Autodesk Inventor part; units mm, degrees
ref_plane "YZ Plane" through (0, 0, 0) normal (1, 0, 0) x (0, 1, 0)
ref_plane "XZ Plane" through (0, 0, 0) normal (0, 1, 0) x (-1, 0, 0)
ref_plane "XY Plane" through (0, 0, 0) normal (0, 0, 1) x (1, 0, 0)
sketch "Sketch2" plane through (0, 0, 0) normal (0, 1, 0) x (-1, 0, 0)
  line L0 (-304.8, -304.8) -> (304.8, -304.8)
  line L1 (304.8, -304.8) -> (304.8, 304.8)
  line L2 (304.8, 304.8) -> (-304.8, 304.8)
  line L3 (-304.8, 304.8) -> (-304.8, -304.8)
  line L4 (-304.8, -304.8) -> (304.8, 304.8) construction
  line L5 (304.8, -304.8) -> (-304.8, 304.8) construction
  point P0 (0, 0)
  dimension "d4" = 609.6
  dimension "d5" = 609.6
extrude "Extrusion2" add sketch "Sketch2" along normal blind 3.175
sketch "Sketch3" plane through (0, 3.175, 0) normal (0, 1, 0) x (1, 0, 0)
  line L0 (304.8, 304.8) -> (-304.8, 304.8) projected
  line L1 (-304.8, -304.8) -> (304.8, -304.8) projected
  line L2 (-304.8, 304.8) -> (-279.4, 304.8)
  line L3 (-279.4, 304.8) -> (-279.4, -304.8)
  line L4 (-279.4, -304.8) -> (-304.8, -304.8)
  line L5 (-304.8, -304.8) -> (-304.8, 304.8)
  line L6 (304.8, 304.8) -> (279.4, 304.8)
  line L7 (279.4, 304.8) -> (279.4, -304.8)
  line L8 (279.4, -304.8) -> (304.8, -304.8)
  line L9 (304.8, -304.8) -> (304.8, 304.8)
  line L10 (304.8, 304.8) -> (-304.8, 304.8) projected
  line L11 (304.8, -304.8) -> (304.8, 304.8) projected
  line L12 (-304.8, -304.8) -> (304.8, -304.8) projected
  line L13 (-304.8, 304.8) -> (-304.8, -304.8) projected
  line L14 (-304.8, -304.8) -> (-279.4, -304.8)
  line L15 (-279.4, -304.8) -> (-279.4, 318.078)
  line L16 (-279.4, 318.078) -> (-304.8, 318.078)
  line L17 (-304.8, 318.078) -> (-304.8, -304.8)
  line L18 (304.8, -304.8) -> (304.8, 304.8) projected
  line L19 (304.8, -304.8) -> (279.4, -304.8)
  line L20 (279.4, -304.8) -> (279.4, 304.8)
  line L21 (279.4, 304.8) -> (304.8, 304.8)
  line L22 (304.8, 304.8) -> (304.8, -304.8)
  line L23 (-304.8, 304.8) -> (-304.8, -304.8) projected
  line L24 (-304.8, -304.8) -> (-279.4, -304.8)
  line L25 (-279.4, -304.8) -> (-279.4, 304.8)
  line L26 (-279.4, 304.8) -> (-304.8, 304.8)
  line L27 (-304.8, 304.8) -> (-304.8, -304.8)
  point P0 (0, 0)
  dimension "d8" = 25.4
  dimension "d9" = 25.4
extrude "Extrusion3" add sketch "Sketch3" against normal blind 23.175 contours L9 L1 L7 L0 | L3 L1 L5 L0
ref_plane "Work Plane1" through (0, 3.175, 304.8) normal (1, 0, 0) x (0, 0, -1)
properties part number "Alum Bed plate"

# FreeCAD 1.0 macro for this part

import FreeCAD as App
import Part
import Sketcher

V = App.Vector
Q = App.Units.Quantity


def add_polygon(sketch, points):
    """Adds a closed chain of lines whose ends are joined by coincident constraints."""
    first, n = sketch.GeometryCount, len(points)
    for a, b in zip(points, points[1:] + points[:1]):
        sketch.addGeometry(Part.LineSegment(App.Vector(*a, 0), App.Vector(*b, 0)), False)
    for i in range(n):
        sketch.addConstraint(Sketcher.Constraint("Coincident", first + i, 2, first + (i + 1) % n, 1))

doc = App.newDocument("Part")
params = doc.addObject("Spreadsheet::Sheet", "Params")
for row, (alias, value) in enumerate([
    ("sketch1_width", "24 in"),
    ("pad1_length", "0.125 in"),
    ("sketch2_width", "1 in"),
    ("sketch2_height", "24 in"),
    ("pad2_length", "0.9124016 in"),
], start=1):
    params.set(f"A{row}", alias)
    params.set(f"B{row}", "=" + value)
    params.setAlias(f"B{row}", alias)

body = doc.addObject("PartDesign::Body", "Body")

# Sketch on XZ plane
sketch1 = body.newObject("Sketcher::SketchObject", "Sketch")
sketch1.AttachmentSupport = (doc.getObject("XZ_Plane"), [""])
sketch1.MapMode = "FlatFace"
add_polygon(sketch1, [(304.8, 304.8), (304.8, -304.8), (-304.8, -304.8), (-304.8, 304.8)])  # lines 0-3
sketch1.addConstraint([
    Sketcher.Constraint("Vertical", 0),
    Sketcher.Constraint("Horizontal", 1),
    Sketcher.Constraint("Vertical", 2),
    Sketcher.Constraint("Horizontal", 3),
    Sketcher.Constraint("Symmetric", 0, 2, 2, 2, -1, 1),
    Sketcher.Constraint("Equal", 3, 0),
    Sketcher.Constraint("DistanceX", 1, 2, 1, 1, Q("24 in")),
])
sketch1.setExpression("Constraints[10]", "Params.sketch1_width")
pad1 = body.newObject("PartDesign::Pad", "Pad")
pad1.Profile = sketch1
pad1.setExpression("Length", "Params.pad1_length")
pad1.Reversed = True

# Sketch on XZ plane
sketch2 = body.newObject("Sketcher::SketchObject", "Sketch001")
sketch2.AttachmentSupport = (doc.getObject("XZ_Plane"), [""])
sketch2.MapMode = "FlatFace"
sketch2.AttachmentOffset = App.Placement(V(0, 0, -0.125 * 25.4), App.Rotation())
add_polygon(sketch2, [(304.8, 304.8), (304.8, -304.8), (279.4, -304.8), (279.4, 304.8)])  # lines 0-3
add_polygon(sketch2, [(-279.4, 304.8), (-279.4, -304.8), (-304.8, -304.8), (-304.8, 304.8)])  # lines 4-7
sketch2.addConstraint([
    Sketcher.Constraint("Vertical", 0),
    Sketcher.Constraint("Horizontal", 1),
    Sketcher.Constraint("Vertical", 2),
    Sketcher.Constraint("Horizontal", 3),
    Sketcher.Constraint("Vertical", 4),
    Sketcher.Constraint("Horizontal", 5),
    Sketcher.Constraint("Vertical", 6),
    Sketcher.Constraint("Horizontal", 7),
    Sketcher.Constraint("Symmetric", 2, 2, 4, 2, -1, 1),
    Sketcher.Constraint("Symmetric", 0, 2, 6, 2, -1, 1),
    Sketcher.Constraint("Horizontal", 1, 2, 4, 2),
    Sketcher.Constraint("DistanceX", 1, 2, 1, 1, Q("1 in")),
    Sketcher.Constraint("DistanceY", 0, 2, 0, 1, Q("24 in")),
    Sketcher.Constraint("DistanceX", -1, 1, 0, 2, Q("12 in")),
])
sketch2.setExpression("Constraints[19]", "Params.sketch2_width")
sketch2.setExpression("Constraints[20]", "Params.sketch2_height")
pad2 = body.newObject("PartDesign::Pad", "Pad001")
pad2.Profile = sketch2
pad2.setExpression("Length", "Params.pad2_length")

doc.recompute()
